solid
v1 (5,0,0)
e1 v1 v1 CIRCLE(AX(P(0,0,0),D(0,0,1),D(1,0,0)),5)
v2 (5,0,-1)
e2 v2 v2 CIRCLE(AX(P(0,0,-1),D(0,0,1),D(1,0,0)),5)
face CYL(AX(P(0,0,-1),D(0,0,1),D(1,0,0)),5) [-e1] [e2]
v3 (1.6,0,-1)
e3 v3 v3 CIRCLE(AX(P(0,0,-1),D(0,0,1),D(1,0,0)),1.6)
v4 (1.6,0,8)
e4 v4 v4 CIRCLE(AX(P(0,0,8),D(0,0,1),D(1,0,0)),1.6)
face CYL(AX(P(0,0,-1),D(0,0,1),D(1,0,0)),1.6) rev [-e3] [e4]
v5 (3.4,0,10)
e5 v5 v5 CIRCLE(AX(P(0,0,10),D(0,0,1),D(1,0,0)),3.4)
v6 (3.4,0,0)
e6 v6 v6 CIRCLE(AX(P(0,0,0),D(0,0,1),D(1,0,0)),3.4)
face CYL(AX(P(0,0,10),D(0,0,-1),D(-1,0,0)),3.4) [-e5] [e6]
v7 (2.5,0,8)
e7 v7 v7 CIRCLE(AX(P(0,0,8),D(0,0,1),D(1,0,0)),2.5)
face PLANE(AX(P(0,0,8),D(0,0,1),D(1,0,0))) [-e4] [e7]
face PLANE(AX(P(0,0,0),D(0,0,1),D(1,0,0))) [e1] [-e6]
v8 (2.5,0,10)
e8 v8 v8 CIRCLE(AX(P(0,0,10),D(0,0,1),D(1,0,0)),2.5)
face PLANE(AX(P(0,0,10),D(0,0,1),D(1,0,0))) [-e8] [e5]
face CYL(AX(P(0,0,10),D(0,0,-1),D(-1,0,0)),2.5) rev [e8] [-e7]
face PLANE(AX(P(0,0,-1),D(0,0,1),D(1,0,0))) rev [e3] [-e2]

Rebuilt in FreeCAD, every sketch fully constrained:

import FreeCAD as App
import Part
import Sketcher
from FreeCAD import Vector

doc = App.newDocument("Part")
body = doc.addObject("PartDesign::Body", "Body")

# Sketch on XY plane
sketch1 = body.newObject("Sketcher::SketchObject", "Sketch")
sketch1.AttachmentSupport = (doc.getObject("XY_Plane"), [""])
sketch1.MapMode = "FlatFace"
sketch1.addGeometry([
    Part.Circle(Vector(0, 0, 0), Vector(0, 0, 1), 5),
    Part.Circle(Vector(0, 0, 0), Vector(0, 0, 1), 1.6),
], False)
sketch1.addConstraint([
    Sketcher.Constraint("Coincident", 0, 3, -1, 1),
    Sketcher.Constraint("Coincident", 1, 3, -1, 1),
    Sketcher.Constraint("Diameter", 0, 10.0),
    Sketcher.Constraint("Diameter", 1, 3.2),
])
pad1 = body.newObject("PartDesign::Pad", "Pad")
pad1.Profile = sketch1
pad1.Length = 1
pad1.Reversed = True

# Sketch on XY plane
sketch2 = body.newObject("Sketcher::SketchObject", "Sketch001")
sketch2.AttachmentSupport = (doc.getObject("XY_Plane"), [""])
sketch2.MapMode = "FlatFace"
sketch2.addGeometry([
    Part.Circle(Vector(0, 0, 0), Vector(0, 0, 1), 3.4),
    Part.Circle(Vector(0, 0, 0), Vector(0, 0, 1), 2.5),
], False)
sketch2.addConstraint([
    Sketcher.Constraint("Coincident", 0, 3, -1, 1),
    Sketcher.Constraint("Coincident", 1, 3, -1, 1),
    Sketcher.Constraint("Diameter", 1, 5.0),
    Sketcher.Constraint("Diameter", 0, 6.8),
])
pad2 = body.newObject("PartDesign::Pad", "Pad001")
pad2.Profile = sketch2
pad2.Length = 10

# Sketch on XY plane
sketch3 = body.newObject("Sketcher::SketchObject", "Sketch002")
sketch3.AttachmentSupport = (doc.getObject("XY_Plane"), [""])
sketch3.MapMode = "FlatFace"
sketch3.addGeometry([
    Part.Circle(Vector(0, 0, 0), Vector(0, 0, 1), 2.5),
    Part.Circle(Vector(0, 0, 0), Vector(0, 0, 1), 1.6),
], False)
sketch3.addConstraint([
    Sketcher.Constraint("Coincident", 0, 3, -1, 1),
    Sketcher.Constraint("Coincident", 1, 3, -1, 1),
    Sketcher.Constraint("Diameter", 0, 5.0),
    Sketcher.Constraint("Diameter", 1, 3.2),
])
pad3 = body.newObject("PartDesign::Pad", "Pad002")
pad3.Profile = sketch3
pad3.Length = 8

doc.recompute()
